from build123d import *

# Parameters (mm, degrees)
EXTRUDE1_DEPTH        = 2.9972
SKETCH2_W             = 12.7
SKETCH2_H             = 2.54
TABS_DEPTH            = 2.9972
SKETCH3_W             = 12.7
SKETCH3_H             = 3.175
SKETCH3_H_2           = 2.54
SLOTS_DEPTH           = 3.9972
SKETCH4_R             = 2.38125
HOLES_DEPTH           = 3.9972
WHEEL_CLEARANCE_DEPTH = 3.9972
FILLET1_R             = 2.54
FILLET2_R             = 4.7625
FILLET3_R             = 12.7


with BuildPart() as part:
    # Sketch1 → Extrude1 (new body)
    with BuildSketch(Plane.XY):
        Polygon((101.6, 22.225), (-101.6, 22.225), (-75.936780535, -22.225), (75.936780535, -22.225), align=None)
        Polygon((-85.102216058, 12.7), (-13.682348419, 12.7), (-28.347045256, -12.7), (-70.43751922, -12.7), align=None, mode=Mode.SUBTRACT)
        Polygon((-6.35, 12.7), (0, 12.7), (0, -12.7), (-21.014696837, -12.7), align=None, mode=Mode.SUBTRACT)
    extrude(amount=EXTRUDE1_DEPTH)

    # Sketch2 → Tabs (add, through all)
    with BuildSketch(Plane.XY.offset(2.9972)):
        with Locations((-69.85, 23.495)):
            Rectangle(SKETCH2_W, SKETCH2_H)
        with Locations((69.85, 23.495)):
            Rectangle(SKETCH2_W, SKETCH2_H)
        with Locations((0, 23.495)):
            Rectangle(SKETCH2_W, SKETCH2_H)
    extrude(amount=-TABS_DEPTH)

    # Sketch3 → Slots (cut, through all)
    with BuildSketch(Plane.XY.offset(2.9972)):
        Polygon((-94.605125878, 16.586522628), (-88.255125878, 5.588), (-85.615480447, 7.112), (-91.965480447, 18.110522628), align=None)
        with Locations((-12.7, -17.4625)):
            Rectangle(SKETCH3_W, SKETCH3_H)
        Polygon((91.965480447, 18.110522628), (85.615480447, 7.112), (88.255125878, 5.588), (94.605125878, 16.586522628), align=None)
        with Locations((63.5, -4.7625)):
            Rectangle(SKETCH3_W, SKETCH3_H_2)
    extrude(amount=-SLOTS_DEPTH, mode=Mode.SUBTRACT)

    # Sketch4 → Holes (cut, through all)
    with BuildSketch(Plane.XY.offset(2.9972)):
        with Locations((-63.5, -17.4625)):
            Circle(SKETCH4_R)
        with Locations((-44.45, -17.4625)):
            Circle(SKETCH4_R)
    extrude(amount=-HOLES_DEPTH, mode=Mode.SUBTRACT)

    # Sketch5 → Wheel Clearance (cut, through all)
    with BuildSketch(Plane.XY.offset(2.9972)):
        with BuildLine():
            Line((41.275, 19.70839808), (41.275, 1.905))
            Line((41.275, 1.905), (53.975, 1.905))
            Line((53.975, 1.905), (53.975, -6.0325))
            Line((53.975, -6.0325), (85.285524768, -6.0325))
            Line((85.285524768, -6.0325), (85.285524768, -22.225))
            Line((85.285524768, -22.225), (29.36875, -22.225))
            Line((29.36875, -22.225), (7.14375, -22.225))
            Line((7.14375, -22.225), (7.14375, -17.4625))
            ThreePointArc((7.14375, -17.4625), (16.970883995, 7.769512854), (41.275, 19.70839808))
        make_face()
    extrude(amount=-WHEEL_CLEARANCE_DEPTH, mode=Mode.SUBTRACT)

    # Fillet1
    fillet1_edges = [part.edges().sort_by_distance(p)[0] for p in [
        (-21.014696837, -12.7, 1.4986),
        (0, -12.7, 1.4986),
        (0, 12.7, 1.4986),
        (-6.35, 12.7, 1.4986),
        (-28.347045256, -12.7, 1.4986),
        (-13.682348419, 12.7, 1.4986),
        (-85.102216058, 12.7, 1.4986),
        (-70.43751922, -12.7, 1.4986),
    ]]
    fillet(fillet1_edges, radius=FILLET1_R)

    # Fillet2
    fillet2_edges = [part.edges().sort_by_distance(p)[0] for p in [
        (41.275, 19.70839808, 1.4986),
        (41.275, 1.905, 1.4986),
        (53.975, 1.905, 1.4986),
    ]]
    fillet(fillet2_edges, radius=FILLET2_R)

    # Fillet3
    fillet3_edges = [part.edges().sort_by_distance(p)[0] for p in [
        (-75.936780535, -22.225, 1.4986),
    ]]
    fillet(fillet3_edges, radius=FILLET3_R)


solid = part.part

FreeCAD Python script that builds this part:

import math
import FreeCAD as App
import Part
import Sketcher
Q = App.Units.Quantity


def edges_at(feature, points):
    """Names of the edges that pass closest to the given points."""
    edges = feature.Shape.Edges
    near = lambda p: min(range(len(edges)), key=lambda i: edges[i].distToShape(Part.Vertex(*p))[0])
    return sorted({f"Edge{near(p) + 1}" for p in points})

doc = App.newDocument("Part")
body = doc.addObject("PartDesign::Body", "Body")

# Sketch on XY plane
sketch1 = body.newObject("Sketcher::SketchObject", "Sketch")
sketch1.AttachmentSupport = (doc.getObject("XY_Plane"), [""])
sketch1.MapMode = "FlatFace"
sketch1.addGeometry(Part.LineSegment(App.Vector(101.6, 22.225, 0), App.Vector(-101.6, 22.225, 0)), False)
sketch1.addGeometry(Part.LineSegment(App.Vector(-101.6, 22.225, 0), App.Vector(-75.936781, -22.225, 0)), False)
sketch1.addGeometry(Part.LineSegment(App.Vector(-75.936781, -22.225, 0), App.Vector(75.936781, -22.225, 0)), False)
sketch1.addGeometry(Part.LineSegment(App.Vector(75.936781, -22.225, 0), App.Vector(101.6, 22.225, 0)), False)
sketch1.addGeometry(Part.LineSegment(App.Vector(-70.437519, -12.7, 0), App.Vector(-85.102216, 12.7, 0)), False)
sketch1.addGeometry(Part.LineSegment(App.Vector(-85.102216, 12.7, 0), App.Vector(-13.682348, 12.7, 0)), False)
sketch1.addGeometry(Part.LineSegment(App.Vector(-13.682348, 12.7, 0), App.Vector(-28.347045, -12.7, 0)), False)
sketch1.addGeometry(Part.LineSegment(App.Vector(-28.347045, -12.7, 0), App.Vector(-70.437519, -12.7, 0)), False)
sketch1.addGeometry(Part.LineSegment(App.Vector(-21.014697, -12.7, 0), App.Vector(-6.35, 12.7, 0)), False)
sketch1.addGeometry(Part.LineSegment(App.Vector(-6.35, 12.7, 0), App.Vector(0, 12.7, 0)), False)
sketch1.addGeometry(Part.LineSegment(App.Vector(0, 12.7, 0), App.Vector(0, -12.7, 0)), False)
sketch1.addGeometry(Part.LineSegment(App.Vector(0, -12.7, 0), App.Vector(-21.014697, -12.7, 0)), False)
sketch1.addConstraint(Sketcher.Constraint("Coincident", 0, 2, 1, 1))
sketch1.addConstraint(Sketcher.Constraint("Coincident", 1, 2, 2, 1))
sketch1.addConstraint(Sketcher.Constraint("Coincident", 2, 2, 3, 1))
sketch1.addConstraint(Sketcher.Constraint("Coincident", 3, 2, 0, 1))
sketch1.addConstraint(Sketcher.Constraint("Coincident", 4, 2, 5, 1))
sketch1.addConstraint(Sketcher.Constraint("Coincident", 5, 2, 6, 1))
sketch1.addConstraint(Sketcher.Constraint("Coincident", 6, 2, 7, 1))
sketch1.addConstraint(Sketcher.Constraint("Coincident", 7, 2, 4, 1))
sketch1.addConstraint(Sketcher.Constraint("Coincident", 8, 2, 9, 1))
sketch1.addConstraint(Sketcher.Constraint("Coincident", 9, 2, 10, 1))
sketch1.addConstraint(Sketcher.Constraint("Coincident", 10, 2, 11, 1))
sketch1.addConstraint(Sketcher.Constraint("Coincident", 11, 2, 8, 1))
sketch1.addConstraint(Sketcher.Constraint("Horizontal", 0))
sketch1.addConstraint(Sketcher.Constraint("Horizontal", 2))
sketch1.addConstraint(Sketcher.Constraint("Horizontal", 5))
sketch1.addConstraint(Sketcher.Constraint("Horizontal", 7))
sketch1.addConstraint(Sketcher.Constraint("Horizontal", 9))
sketch1.addConstraint(Sketcher.Constraint("Vertical", 10))
sketch1.addConstraint(Sketcher.Constraint("Horizontal", 11))
sketch1.addConstraint(Sketcher.Constraint("Symmetric", 9, 2, 10, 2, -1, 1))
sketch1.addConstraint(Sketcher.Constraint("Parallel", 1, 4))
sketch1.addConstraint(Sketcher.Constraint("Parallel", 3, 6))
sketch1.addConstraint(Sketcher.Constraint("Parallel", 6, 8))
sketch1.addConstraint(Sketcher.Constraint("Horizontal", 5, 2, 8, 2))
sketch1.addConstraint(Sketcher.Constraint("Horizontal", 7, 2, 10, 2))
sketch1.addConstraint(Sketcher.Constraint("Equal", 1, 3))
sketch1.addConstraint(Sketcher.Constraint("DistanceX", 0, 2, 0, 1, Q("8 in")))
sketch1.addConstraint(Sketcher.Constraint("DistanceY", 10, 2, 10, 1, Q("1 in")))
sketch1.addConstraint(Sketcher.Constraint("DistanceX", 0, 2, -1, 1, Q("4 in")))
sketch1.addConstraint(Sketcher.Constraint("Angle", 1, Q("-60 deg")))
sketch1.addConstraint(Sketcher.Constraint("DistanceX", 9, 1, 9, 2, Q("0.25 in")))
sketch1.addConstraint(Sketcher.Constraint("DistanceY", 1, 2, 0, 2, Q("1.75 in")))
sketch1.addConstraint(Sketcher.Constraint("DistanceY", -1, 1, 0, 2, Q("0.875 in")))
sketch1.addConstraint(Sketcher.Constraint("DistanceX", 5, 1, 5, 2, Q("71.419868 mm")))
sketch1.addConstraint(Sketcher.Constraint("DistanceX", 5, 2, -1, 1, Q("13.682348 mm")))
pad1 = body.newObject("PartDesign::Pad", "Pad")
pad1.Profile = sketch1
pad1.Length = Q("0.118 in")

# Sketch on XY plane
sketch2 = body.newObject("Sketcher::SketchObject", "Sketch001")
sketch2.AttachmentSupport = (doc.getObject("XY_Plane"), [""])
sketch2.MapMode = "FlatFace"
sketch2.AttachmentOffset = App.Placement(App.Vector(0, 0, 0.118 * 25.4), App.Rotation())
sketch2.addGeometry(Part.LineSegment(App.Vector(-76.2, 24.765, 0), App.Vector(-76.2, 22.225, 0)), False)
sketch2.addGeometry(Part.LineSegment(App.Vector(-76.2, 22.225, 0), App.Vector(-63.5, 22.225, 0)), False)
sketch2.addGeometry(Part.LineSegment(App.Vector(-63.5, 22.225, 0), App.Vector(-63.5, 24.765, 0)), False)
sketch2.addGeometry(Part.LineSegment(App.Vector(-63.5, 24.765, 0), App.Vector(-76.2, 24.765, 0)), False)
sketch2.addGeometry(Part.LineSegment(App.Vector(63.5, 24.765, 0), App.Vector(63.5, 22.225, 0)), False)
sketch2.addGeometry(Part.LineSegment(App.Vector(63.5, 22.225, 0), App.Vector(76.2, 22.225, 0)), False)
sketch2.addGeometry(Part.LineSegment(App.Vector(76.2, 22.225, 0), App.Vector(76.2, 24.765, 0)), False)
sketch2.addGeometry(Part.LineSegment(App.Vector(76.2, 24.765, 0), App.Vector(63.5, 24.765, 0)), False)
sketch2.addGeometry(Part.LineSegment(App.Vector(-6.35, 24.765, 0), App.Vector(-6.35, 22.225, 0)), False)
sketch2.addGeometry(Part.LineSegment(App.Vector(-6.35, 22.225, 0), App.Vector(6.35, 22.225, 0)), False)
sketch2.addGeometry(Part.LineSegment(App.Vector(6.35, 22.225, 0), App.Vector(6.35, 24.765, 0)), False)
sketch2.addGeometry(Part.LineSegment(App.Vector(6.35, 24.765, 0), App.Vector(-6.35, 24.765, 0)), False)
sketch2.addConstraint(Sketcher.Constraint("Coincident", 0, 2, 1, 1))
sketch2.addConstraint(Sketcher.Constraint("Coincident", 1, 2, 2, 1))
sketch2.addConstraint(Sketcher.Constraint("Coincident", 2, 2, 3, 1))
sketch2.addConstraint(Sketcher.Constraint("Coincident", 3, 2, 0, 1))
sketch2.addConstraint(Sketcher.Constraint("Coincident", 4, 2, 5, 1))
sketch2.addConstraint(Sketcher.Constraint("Coincident", 5, 2, 6, 1))
sketch2.addConstraint(Sketcher.Constraint("Coincident", 6, 2, 7, 1))
sketch2.addConstraint(Sketcher.Constraint("Coincident", 7, 2, 4, 1))
sketch2.addConstraint(Sketcher.Constraint("Coincident", 8, 2, 9, 1))
sketch2.addConstraint(Sketcher.Constraint("Coincident", 9, 2, 10, 1))
sketch2.addConstraint(Sketcher.Constraint("Coincident", 10, 2, 11, 1))
sketch2.addConstraint(Sketcher.Constraint("Coincident", 11, 2, 8, 1))
sketch2.addConstraint(Sketcher.Constraint("Vertical", 0))
sketch2.addConstraint(Sketcher.Constraint("Horizontal", 1))
sketch2.addConstraint(Sketcher.Constraint("Vertical", 2))
sketch2.addConstraint(Sketcher.Constraint("Horizontal", 3))
sketch2.addConstraint(Sketcher.Constraint("Vertical", 4))
sketch2.addConstraint(Sketcher.Constraint("Horizontal", 5))
sketch2.addConstraint(Sketcher.Constraint("Vertical", 6))
sketch2.addConstraint(Sketcher.Constraint("Horizontal", 7))
sketch2.addConstraint(Sketcher.Constraint("Vertical", 8))
sketch2.addConstraint(Sketcher.Constraint("Horizontal", 9))
sketch2.addConstraint(Sketcher.Constraint("Vertical", 10))
sketch2.addConstraint(Sketcher.Constraint("Horizontal", 11))
sketch2.addConstraint(Sketcher.Constraint("Symmetric", 1, 2, 4, 2, -2))
sketch2.addConstraint(Sketcher.Constraint("Symmetric", 3, 2, 6, 2, -2))
sketch2.addConstraint(Sketcher.Constraint("Horizontal", 5, 2, 8, 2))
sketch2.addConstraint(Sketcher.Constraint("Horizontal", 7, 2, 10, 2))
sketch2.addConstraint(Sketcher.Constraint("Equal", 7, 9))
sketch2.addConstraint(Sketcher.Constraint("DistanceX", 1, 1, 1, 2, Q("0.5 in")))
sketch2.addConstraint(Sketcher.Constraint("DistanceY", 0, 2, 0, 1, Q("0.1 in")))
sketch2.addConstraint(Sketcher.Constraint("DistanceX", 0, 2, -1, 1, Q("3 in")))
sketch2.addConstraint(Sketcher.Constraint("DistanceX", 8, 2, -1, 1, Q("0.25 in")))
sketch2.addConstraint(Sketcher.Constraint("DistanceY", -1, 1, 0, 2, Q("0.875 in")))
pad2 = body.newObject("PartDesign::Pad", "Pad001")
pad2.Profile = sketch2
pad2.Length = Q("0.118 in")
pad2.Reversed = True

# Sketch on XY plane
sketch3 = body.newObject("Sketcher::SketchObject", "Sketch002")
sketch3.AttachmentSupport = (doc.getObject("XY_Plane"), [""])
sketch3.MapMode = "FlatFace"
sketch3.AttachmentOffset = App.Placement(App.Vector(0, 0, 0.118 * 25.4), App.Rotation())
sketch3.addGeometry(Part.LineSegment(App.Vector(-94.605126, 16.586523, 0), App.Vector(-88.255126, 5.588, 0)), False)
sketch3.addGeometry(Part.LineSegment(App.Vector(-88.255126, 5.588, 0), App.Vector(-85.61548, 7.112, 0)), False)
sketch3.addGeometry(Part.LineSegment(App.Vector(-85.61548, 7.112, 0), App.Vector(-91.96548, 18.110523, 0)), False)
sketch3.addGeometry(Part.LineSegment(App.Vector(-91.96548, 18.110523, 0), App.Vector(-94.605126, 16.586523, 0)), False)
sketch3.addGeometry(Part.LineSegment(App.Vector(-19.05, -15.875, 0), App.Vector(-19.05, -19.05, 0)), False)
sketch3.addGeometry(Part.LineSegment(App.Vector(-19.05, -19.05, 0), App.Vector(-6.35, -19.05, 0)), False)
sketch3.addGeometry(Part.LineSegment(App.Vector(-6.35, -19.05, 0), App.Vector(-6.35, -15.875, 0)), False)
sketch3.addGeometry(Part.LineSegment(App.Vector(-6.35, -15.875, 0), App.Vector(-19.05, -15.875, 0)), False)
sketch3.addGeometry(Part.LineSegment(App.Vector(91.96548, 18.110523, 0), App.Vector(85.61548, 7.112, 0)), False)
sketch3.addGeometry(Part.LineSegment(App.Vector(85.61548, 7.112, 0), App.Vector(88.255126, 5.588, 0)), False)
sketch3.addGeometry(Part.LineSegment(App.Vector(88.255126, 5.588, 0), App.Vector(94.605126, 16.586523, 0)), False)
sketch3.addGeometry(Part.LineSegment(App.Vector(94.605126, 16.586523, 0), App.Vector(91.96548, 18.110523, 0)), False)
sketch3.addGeometry(Part.LineSegment(App.Vector(57.15, -3.4925, 0), App.Vector(57.15, -6.0325, 0)), False)
sketch3.addGeometry(Part.LineSegment(App.Vector(57.15, -6.0325, 0), App.Vector(69.85, -6.0325, 0)), False)
sketch3.addGeometry(Part.LineSegment(App.Vector(69.85, -6.0325, 0), App.Vector(69.85, -3.4925, 0)), False)
sketch3.addGeometry(Part.LineSegment(App.Vector(69.85, -3.4925, 0), App.Vector(57.15, -3.4925, 0)), False)
sketch3.addConstraint(Sketcher.Constraint("Coincident", 0, 2, 1, 1))
sketch3.addConstraint(Sketcher.Constraint("Coincident", 1, 2, 2, 1))
sketch3.addConstraint(Sketcher.Constraint("Coincident", 2, 2, 3, 1))
sketch3.addConstraint(Sketcher.Constraint("Coincident", 3, 2, 0, 1))
sketch3.addConstraint(Sketcher.Constraint("Coincident", 4, 2, 5, 1))
sketch3.addConstraint(Sketcher.Constraint("Coincident", 5, 2, 6, 1))
sketch3.addConstraint(Sketcher.Constraint("Coincident", 6, 2, 7, 1))
sketch3.addConstraint(Sketcher.Constraint("Coincident", 7, 2, 4, 1))
sketch3.addConstraint(Sketcher.Constraint("Coincident", 8, 2, 9, 1))
sketch3.addConstraint(Sketcher.Constraint("Coincident", 9, 2, 10, 1))
sketch3.addConstraint(Sketcher.Constraint("Coincident", 10, 2, 11, 1))
sketch3.addConstraint(Sketcher.Constraint("Coincident", 11, 2, 8, 1))
sketch3.addConstraint(Sketcher.Constraint("Coincident", 12, 2, 13, 1))
sketch3.addConstraint(Sketcher.Constraint("Coincident", 13, 2, 14, 1))
sketch3.addConstraint(Sketcher.Constraint("Coincident", 14, 2, 15, 1))
sketch3.addConstraint(Sketcher.Constraint("Coincident", 15, 2, 12, 1))
sketch3.addConstraint(Sketcher.Constraint("Vertical", 4))
sketch3.addConstraint(Sketcher.Constraint("Horizontal", 5))
sketch3.addConstraint(Sketcher.Constraint("Vertical", 6))
sketch3.addConstraint(Sketcher.Constraint("Horizontal", 7))
sketch3.addConstraint(Sketcher.Constraint("Vertical", 12))
sketch3.addConstraint(Sketcher.Constraint("Horizontal", 13))
sketch3.addConstraint(Sketcher.Constraint("Vertical", 14))
sketch3.addConstraint(Sketcher.Constraint("Horizontal", 15))
sketch3.addConstraint(Sketcher.Constraint("Symmetric", 1, 2, 8, 2, -2))
sketch3.addConstraint(Sketcher.Constraint("Symmetric", 0, 2, 9, 2, -2))
sketch3.addConstraint(Sketcher.Constraint("Symmetric", 3, 2, 10, 2, -2))
sketch3.addConstraint(Sketcher.Constraint("Symmetric", 2, 2, 11, 2, -2))
sketch3.addConstraint(Sketcher.Constraint("Perpendicular", 0, 1))
sketch3.addConstraint(Sketcher.Constraint("Perpendicular", 1, 2))
sketch3.addConstraint(Sketcher.Constraint("Perpendicular", 2, 3))
sketch3.addConstraint(Sketcher.Constraint("Equal", 7, 13))
sketch3.addConstraint(Sketcher.Constraint("DistanceX", 5, 1, 5, 2, Q("0.5 in")))
sketch3.addConstraint(Sketcher.Constraint("DistanceY", 12, 2, 12, 1, Q("0.1 in")))
sketch3.addConstraint(Sketcher.Constraint("Angle", 0, Q("-60 deg")))
sketch3.addConstraint(Sketcher.Constraint("Distance", 0, Q("0.5 in")))
sketch3.addConstraint(Sketcher.Constraint("DistanceX", 6, 2, 12, 2, Q("2.5 in")))
sketch3.addConstraint(Sketcher.Constraint("Distance", 1, Q("0.12 in")))
sketch3.addConstraint(Sketcher.Constraint("DistanceY", 4, 2, 4, 1, Q("0.125 in")))
sketch3.addConstraint(Sketcher.Constraint("DistanceY", -1, 1, 0, 2, Q("0.22 in")))
sketch3.addConstraint(Sketcher.Constraint("DistanceX", 4, 2, -1, 1, Q("0.75 in")))
sketch3.addConstraint(Sketcher.Constraint("DistanceY", 4, 2, -1, 1, Q("0.75 in")))
sketch3.addConstraint(Sketcher.Constraint("DistanceY", 12, 2, -1, 1, Q("0.2375 in")))
sketch3.addConstraint(Sketcher.Constraint("DistanceX", 1, 2, -1, 1, Q("85.61548 mm")))
pocket1 = body.newObject("PartDesign::Pocket", "Pocket")
pocket1.Profile = sketch3
pocket1.Type = "ThroughAll"

# Sketch on XY plane
sketch4 = body.newObject("Sketcher::SketchObject", "Sketch003")
sketch4.AttachmentSupport = (doc.getObject("XY_Plane"), [""])
sketch4.MapMode = "FlatFace"
sketch4.AttachmentOffset = App.Placement(App.Vector(0, 0, 0.118 * 25.4), App.Rotation())
sketch4.addGeometry(Part.Circle(App.Vector(-63.5, -17.4625, 0), App.Vector(0, 0, 1), 2.38125), False)
sketch4.addGeometry(Part.Circle(App.Vector(-44.45, -17.4625, 0), App.Vector(0, 0, 1), 2.38125), False)
sketch4.addConstraint(Sketcher.Constraint("Equal", 0, 1))
sketch4.addConstraint(Sketcher.Constraint("Horizontal", 0, 3, 1, 3))
sketch4.addConstraint(Sketcher.Constraint("Diameter", 0, Q("0.1875 in")))
sketch4.addConstraint(Sketcher.Constraint("DistanceX", 0, 3, -1, 1, Q("2.5 in")))
sketch4.addConstraint(Sketcher.Constraint("DistanceX", 1, 3, -1, 1, Q("1.75 in")))
sketch4.addConstraint(Sketcher.Constraint("DistanceY", 0, 3, -1, 1, Q("0.6875 in")))
pocket2 = body.newObject("PartDesign::Pocket", "Pocket001")
pocket2.Profile = sketch4
pocket2.Type = "ThroughAll"

# Sketch on XY plane
sketch5 = body.newObject("Sketcher::SketchObject", "Sketch004")
sketch5.AttachmentSupport = (doc.getObject("XY_Plane"), [""])
sketch5.MapMode = "FlatFace"
sketch5.AttachmentOffset = App.Placement(App.Vector(0, 0, 0.118 * 25.4), App.Rotation())
sketch5.addGeometry(Part.LineSegment(App.Vector(41.275, 1.905, 0), App.Vector(41.275, 19.708398, 0)), False)
sketch5.addGeometry(Part.ArcOfCircle(Part.Circle(App.Vector(44.45, -17.4625, 0), App.Vector(0, 0, 1), 37.30625), math.radians(94.882142), math.radians(180)), False)
sketch5.addGeometry(Part.LineSegment(App.Vector(7.14375, -17.4625, 0), App.Vector(7.14375, -22.225, 0)), False)
sketch5.addGeometry(Part.LineSegment(App.Vector(7.14375, -22.225, 0), App.Vector(85.285525, -22.225, 0)), False)
sketch5.addGeometry(Part.LineSegment(App.Vector(85.285525, -22.225, 0), App.Vector(85.285525, -6.0325, 0)), False)
sketch5.addGeometry(Part.LineSegment(App.Vector(85.285525, -6.0325, 0), App.Vector(53.975, -6.0325, 0)), False)
sketch5.addGeometry(Part.LineSegment(App.Vector(53.975, -6.0325, 0), App.Vector(53.975, 1.905, 0)), False)
sketch5.addGeometry(Part.LineSegment(App.Vector(53.975, 1.905, 0), App.Vector(41.275, 1.905, 0)), False)
sketch5.addConstraint(Sketcher.Constraint("Coincident", 0, 2, 1, 1))
sketch5.addConstraint(Sketcher.Constraint("Tangent", 1, 2, 2, 1))
sketch5.addConstraint(Sketcher.Constraint("Coincident", 2, 2, 3, 1))
sketch5.addConstraint(Sketcher.Constraint("Coincident", 3, 2, 4, 1))
sketch5.addConstraint(Sketcher.Constraint("Coincident", 4, 2, 5, 1))
sketch5.addConstraint(Sketcher.Constraint("Coincident", 5, 2, 6, 1))
sketch5.addConstraint(Sketcher.Constraint("Coincident", 6, 2, 7, 1))
sketch5.addConstraint(Sketcher.Constraint("Coincident", 7, 2, 0, 1))
sketch5.addConstraint(Sketcher.Constraint("Vertical", 0))
sketch5.addConstraint(Sketcher.Constraint("Vertical", 2))
sketch5.addConstraint(Sketcher.Constraint("Horizontal", 3))
sketch5.addConstraint(Sketcher.Constraint("Vertical", 4))
sketch5.addConstraint(Sketcher.Constraint("Horizontal", 5))
sketch5.addConstraint(Sketcher.Constraint("Vertical", 6))
sketch5.addConstraint(Sketcher.Constraint("Horizontal", 7))
sketch5.addConstraint(Sketcher.Constraint("DistanceX", 7, 2, 7, 1, Q("0.5 in")))
sketch5.addConstraint(Sketcher.Constraint("Radius", 1, Q("1.46875 in")))
sketch5.addConstraint(Sketcher.Constraint("DistanceY", 2, 2, 2, 1, Q("0.1875 in")))
sketch5.addConstraint(Sketcher.Constraint("DistanceY", 6, 1, 6, 2, Q("0.3125 in")))
sketch5.addConstraint(Sketcher.Constraint("DistanceX", -1, 1, 1, 3, Q("1.75 in")))
sketch5.addConstraint(Sketcher.Constraint("DistanceY", 1, 3, 4, 2, Q("0.45 in")))
sketch5.addConstraint(Sketcher.Constraint("DistanceY", 1, 3, -1, 1, Q("0.6875 in")))
sketch5.addConstraint(Sketcher.Constraint("DistanceX", -1, 1, 0, 2, Q("1.625 in")))
sketch5.addConstraint(Sketcher.Constraint("DistanceX", 3, 1, 3, 2, Q("78.141775 mm")))
pocket3 = body.newObject("PartDesign::Pocket", "Pocket002")
pocket3.Profile = sketch5
pocket3.Type = "ThroughAll"
doc.recompute()

fillet = body.newObject("PartDesign::Fillet", "Fillet")
fillet.Base = (pocket3, edges_at(pocket3, [
    (-21.015, -12.7, 1.499),
    (0, -12.7, 1.499),
    (0, 12.7, 1.499),
    (-6.35, 12.7, 1.499),
    (-28.347, -12.7, 1.499),
    (-13.682, 12.7, 1.499),
    (-85.102, 12.7, 1.499),
    (-70.438, -12.7, 1.499),
]))
fillet.Radius = Q("0.1 in")
doc.recompute()

fillet2 = body.newObject("PartDesign::Fillet", "Fillet001")
fillet2.Base = (fillet, edges_at(fillet, [(41.275, 19.708, 1.499), (41.275, 1.905, 1.499), (53.975, 1.905, 1.499)]))
fillet2.Radius = Q("0.1875 in")
doc.recompute()

fillet3 = body.newObject("PartDesign::Fillet", "Fillet002")
fillet3.Base = (fillet2, edges_at(fillet2, [(-75.937, -22.225, 1.499)]))
fillet3.Radius = Q("0.5 in")

doc.recompute()
